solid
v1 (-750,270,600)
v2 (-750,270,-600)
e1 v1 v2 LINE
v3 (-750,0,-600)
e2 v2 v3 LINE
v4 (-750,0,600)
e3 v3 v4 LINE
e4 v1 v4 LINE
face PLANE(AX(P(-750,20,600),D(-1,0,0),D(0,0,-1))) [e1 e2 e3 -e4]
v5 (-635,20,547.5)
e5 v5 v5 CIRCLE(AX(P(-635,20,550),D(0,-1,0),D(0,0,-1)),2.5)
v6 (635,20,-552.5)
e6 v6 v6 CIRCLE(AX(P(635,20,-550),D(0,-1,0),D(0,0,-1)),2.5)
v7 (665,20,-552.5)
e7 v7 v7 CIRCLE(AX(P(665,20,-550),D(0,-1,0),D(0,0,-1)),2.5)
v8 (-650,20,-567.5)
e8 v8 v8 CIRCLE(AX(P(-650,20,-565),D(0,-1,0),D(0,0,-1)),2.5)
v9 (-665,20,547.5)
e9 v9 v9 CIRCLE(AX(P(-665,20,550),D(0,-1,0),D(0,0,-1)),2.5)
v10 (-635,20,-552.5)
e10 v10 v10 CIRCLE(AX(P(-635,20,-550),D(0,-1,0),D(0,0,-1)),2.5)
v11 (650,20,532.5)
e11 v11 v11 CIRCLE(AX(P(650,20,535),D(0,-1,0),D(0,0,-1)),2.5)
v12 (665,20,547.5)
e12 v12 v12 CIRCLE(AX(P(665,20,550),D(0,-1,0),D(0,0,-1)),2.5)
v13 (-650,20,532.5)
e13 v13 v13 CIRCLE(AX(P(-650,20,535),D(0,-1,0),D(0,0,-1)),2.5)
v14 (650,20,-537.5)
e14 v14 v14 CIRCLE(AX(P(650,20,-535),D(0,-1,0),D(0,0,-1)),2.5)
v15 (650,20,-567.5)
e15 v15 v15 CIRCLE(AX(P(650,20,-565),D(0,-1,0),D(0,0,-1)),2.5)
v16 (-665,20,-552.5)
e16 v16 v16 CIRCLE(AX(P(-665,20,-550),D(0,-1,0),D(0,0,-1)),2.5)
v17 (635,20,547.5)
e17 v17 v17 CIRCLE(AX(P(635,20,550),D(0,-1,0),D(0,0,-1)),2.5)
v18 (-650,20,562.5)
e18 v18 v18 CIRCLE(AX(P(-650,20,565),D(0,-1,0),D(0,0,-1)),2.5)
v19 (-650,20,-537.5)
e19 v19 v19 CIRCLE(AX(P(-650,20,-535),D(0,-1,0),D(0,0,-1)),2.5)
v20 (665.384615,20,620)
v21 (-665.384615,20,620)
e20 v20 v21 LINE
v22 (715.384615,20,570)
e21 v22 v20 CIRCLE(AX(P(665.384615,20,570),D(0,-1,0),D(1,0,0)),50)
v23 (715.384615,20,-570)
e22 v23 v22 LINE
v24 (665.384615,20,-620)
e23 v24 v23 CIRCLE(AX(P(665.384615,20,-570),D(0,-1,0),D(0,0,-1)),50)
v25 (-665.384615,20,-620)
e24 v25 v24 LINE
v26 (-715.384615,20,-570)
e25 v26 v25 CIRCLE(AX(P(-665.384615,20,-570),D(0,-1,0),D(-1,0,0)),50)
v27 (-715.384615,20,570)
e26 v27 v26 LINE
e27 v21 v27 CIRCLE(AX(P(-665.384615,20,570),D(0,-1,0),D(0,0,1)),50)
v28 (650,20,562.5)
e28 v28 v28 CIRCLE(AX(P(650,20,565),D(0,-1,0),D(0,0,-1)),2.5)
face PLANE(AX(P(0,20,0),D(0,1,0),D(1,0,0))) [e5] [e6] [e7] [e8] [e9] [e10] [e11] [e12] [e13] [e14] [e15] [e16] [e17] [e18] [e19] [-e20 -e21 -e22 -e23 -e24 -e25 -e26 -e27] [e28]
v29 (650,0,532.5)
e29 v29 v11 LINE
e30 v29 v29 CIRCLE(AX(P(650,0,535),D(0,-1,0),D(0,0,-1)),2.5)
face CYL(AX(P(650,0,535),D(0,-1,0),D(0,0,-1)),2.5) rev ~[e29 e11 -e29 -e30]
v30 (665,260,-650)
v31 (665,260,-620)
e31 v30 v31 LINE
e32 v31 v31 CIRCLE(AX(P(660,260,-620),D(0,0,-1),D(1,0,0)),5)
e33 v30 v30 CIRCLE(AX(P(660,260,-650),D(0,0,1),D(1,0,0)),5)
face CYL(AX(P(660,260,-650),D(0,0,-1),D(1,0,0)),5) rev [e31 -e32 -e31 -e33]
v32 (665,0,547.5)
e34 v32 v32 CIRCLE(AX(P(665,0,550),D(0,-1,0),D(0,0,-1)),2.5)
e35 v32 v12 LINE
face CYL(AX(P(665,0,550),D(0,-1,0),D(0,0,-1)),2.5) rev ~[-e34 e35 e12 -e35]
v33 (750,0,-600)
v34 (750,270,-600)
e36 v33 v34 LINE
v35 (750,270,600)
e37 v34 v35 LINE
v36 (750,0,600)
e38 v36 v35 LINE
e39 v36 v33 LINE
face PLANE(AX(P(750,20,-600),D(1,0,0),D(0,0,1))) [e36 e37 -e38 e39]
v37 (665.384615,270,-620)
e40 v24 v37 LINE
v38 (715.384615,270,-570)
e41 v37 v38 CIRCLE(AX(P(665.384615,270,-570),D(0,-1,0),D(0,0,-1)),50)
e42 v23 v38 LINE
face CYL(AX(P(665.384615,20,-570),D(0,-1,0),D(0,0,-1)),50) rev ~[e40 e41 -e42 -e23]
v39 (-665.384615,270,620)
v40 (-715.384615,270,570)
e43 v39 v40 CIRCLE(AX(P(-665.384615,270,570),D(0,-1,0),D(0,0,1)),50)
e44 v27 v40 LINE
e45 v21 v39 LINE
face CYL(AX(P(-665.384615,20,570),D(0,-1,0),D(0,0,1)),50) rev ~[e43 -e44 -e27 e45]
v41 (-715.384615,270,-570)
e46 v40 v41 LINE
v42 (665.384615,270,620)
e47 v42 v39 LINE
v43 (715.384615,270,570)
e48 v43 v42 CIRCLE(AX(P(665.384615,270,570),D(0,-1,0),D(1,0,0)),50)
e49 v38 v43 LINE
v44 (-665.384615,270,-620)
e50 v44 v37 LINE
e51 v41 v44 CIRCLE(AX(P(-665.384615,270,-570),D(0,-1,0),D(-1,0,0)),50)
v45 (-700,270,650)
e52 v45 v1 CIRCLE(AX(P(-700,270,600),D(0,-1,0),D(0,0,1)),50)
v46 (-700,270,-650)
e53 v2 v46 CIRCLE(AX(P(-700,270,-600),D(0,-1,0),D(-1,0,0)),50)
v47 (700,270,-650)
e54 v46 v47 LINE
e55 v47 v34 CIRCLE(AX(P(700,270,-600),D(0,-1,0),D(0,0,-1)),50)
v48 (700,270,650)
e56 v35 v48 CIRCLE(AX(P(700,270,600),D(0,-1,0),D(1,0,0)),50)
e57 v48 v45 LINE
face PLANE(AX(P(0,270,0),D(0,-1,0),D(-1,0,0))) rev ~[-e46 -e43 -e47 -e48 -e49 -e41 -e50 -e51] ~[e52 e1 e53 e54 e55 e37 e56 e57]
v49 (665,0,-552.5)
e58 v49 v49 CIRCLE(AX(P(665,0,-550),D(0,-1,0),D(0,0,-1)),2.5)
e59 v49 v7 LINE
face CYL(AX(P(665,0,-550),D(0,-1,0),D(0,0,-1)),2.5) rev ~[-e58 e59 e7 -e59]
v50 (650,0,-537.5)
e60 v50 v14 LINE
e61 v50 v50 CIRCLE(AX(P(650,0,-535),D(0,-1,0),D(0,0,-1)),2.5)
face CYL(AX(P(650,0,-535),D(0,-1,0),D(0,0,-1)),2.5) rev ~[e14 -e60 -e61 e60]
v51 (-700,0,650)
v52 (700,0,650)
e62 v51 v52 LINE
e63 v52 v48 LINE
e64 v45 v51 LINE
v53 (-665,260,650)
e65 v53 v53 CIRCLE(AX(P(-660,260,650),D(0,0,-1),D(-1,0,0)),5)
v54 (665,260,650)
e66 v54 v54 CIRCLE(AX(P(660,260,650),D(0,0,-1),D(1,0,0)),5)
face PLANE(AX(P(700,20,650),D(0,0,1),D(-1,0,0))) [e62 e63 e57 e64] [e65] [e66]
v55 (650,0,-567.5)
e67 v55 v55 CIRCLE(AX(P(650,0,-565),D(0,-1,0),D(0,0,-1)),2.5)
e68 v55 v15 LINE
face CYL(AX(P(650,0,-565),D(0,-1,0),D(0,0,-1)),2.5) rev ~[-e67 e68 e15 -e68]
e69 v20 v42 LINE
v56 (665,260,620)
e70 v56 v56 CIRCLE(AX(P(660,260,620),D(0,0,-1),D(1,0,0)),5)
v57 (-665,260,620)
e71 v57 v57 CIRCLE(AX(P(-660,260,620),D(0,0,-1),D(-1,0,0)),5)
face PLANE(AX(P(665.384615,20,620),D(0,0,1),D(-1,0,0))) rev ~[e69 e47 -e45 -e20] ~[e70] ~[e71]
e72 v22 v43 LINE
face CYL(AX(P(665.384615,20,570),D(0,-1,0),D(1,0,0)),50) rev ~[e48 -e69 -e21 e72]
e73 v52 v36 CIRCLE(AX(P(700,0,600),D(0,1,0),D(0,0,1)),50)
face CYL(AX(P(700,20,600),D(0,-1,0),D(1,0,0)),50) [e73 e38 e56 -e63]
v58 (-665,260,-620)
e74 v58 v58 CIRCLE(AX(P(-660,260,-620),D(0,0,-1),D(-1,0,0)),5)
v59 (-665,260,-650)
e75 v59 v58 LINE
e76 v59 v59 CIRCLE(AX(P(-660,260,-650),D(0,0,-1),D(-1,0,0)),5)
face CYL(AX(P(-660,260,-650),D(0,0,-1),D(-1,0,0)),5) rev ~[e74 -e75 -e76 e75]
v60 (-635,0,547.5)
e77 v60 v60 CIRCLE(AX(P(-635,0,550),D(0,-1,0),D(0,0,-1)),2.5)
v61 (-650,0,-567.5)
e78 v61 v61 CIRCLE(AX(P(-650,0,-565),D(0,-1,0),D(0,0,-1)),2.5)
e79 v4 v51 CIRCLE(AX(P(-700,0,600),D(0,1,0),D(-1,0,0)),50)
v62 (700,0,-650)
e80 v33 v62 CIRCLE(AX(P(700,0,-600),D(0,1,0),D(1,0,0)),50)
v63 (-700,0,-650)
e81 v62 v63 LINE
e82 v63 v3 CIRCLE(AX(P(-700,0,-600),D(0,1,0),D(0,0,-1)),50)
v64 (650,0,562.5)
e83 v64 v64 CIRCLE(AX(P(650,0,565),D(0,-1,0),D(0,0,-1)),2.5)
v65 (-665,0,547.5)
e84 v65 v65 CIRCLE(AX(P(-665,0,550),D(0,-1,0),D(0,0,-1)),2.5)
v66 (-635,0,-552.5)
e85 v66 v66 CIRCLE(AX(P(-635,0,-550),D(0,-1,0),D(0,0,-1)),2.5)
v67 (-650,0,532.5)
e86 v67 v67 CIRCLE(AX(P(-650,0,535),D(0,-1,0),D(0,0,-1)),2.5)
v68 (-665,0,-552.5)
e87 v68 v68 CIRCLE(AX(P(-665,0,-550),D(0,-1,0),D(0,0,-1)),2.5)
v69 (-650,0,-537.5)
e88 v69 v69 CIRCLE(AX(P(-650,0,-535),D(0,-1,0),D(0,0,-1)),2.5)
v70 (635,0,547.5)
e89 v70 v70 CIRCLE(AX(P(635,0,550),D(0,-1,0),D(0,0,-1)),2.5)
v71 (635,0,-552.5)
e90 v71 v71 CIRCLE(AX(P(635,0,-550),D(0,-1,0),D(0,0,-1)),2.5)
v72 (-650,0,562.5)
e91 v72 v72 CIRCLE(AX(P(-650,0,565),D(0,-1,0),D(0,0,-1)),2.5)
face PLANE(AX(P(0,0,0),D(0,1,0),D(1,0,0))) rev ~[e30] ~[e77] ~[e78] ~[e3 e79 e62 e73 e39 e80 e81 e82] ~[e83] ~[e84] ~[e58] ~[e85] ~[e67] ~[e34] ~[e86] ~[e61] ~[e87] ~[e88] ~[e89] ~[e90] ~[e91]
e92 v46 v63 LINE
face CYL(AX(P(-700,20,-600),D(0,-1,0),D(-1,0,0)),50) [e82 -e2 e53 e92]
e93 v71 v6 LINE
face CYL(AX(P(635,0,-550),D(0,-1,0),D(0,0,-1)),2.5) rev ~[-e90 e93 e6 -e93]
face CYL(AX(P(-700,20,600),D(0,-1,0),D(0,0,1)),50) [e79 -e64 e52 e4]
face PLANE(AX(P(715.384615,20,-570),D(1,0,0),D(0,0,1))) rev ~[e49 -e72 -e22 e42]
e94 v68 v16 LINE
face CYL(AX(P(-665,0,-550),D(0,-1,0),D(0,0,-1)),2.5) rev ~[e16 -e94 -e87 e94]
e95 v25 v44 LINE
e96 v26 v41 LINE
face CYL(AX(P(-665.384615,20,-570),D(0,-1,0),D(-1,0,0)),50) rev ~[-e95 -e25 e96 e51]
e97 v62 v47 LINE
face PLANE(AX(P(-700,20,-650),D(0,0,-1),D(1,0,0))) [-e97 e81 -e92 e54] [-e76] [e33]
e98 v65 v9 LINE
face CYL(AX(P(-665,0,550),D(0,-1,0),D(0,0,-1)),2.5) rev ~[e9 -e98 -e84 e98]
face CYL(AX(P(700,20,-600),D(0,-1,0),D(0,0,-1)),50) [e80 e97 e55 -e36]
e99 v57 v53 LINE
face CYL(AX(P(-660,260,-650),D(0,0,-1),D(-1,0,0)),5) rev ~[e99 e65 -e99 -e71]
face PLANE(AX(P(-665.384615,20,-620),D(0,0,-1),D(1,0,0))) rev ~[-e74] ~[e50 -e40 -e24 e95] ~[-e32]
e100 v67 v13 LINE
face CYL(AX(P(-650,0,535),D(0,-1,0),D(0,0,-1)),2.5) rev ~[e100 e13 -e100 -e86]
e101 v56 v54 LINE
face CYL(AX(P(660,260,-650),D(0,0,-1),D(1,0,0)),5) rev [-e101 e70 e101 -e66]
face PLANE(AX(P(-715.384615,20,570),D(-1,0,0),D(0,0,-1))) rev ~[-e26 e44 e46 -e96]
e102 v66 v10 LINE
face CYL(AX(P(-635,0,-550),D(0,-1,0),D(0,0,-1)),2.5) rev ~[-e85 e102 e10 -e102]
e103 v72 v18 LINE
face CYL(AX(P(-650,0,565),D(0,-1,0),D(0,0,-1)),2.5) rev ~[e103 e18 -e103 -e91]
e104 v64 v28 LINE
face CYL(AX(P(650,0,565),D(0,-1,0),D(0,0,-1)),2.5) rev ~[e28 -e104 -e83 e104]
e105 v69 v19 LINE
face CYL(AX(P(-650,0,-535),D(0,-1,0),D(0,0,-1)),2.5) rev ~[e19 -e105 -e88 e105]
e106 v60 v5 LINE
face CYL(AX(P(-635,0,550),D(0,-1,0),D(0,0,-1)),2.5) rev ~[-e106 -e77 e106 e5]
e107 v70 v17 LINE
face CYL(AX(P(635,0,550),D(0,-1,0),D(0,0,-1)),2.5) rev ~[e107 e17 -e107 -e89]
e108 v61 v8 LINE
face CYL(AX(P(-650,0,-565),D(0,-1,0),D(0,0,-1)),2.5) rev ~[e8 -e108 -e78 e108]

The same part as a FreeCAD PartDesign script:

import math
import FreeCAD as App
import Part
import Sketcher

V = App.Vector
Q = App.Units.Quantity

doc = App.newDocument("Part")
body = doc.addObject("PartDesign::Body", "Body")

sketch1 = body.newObject("Sketcher::SketchObject", "Sketch")
sketch1.AttachmentSupport = (doc.getObject("XZ_Plane"), [""])
sketch1.MapMode = "FlatFace"
sketch1.addGeometry(Part.LineSegment(V(-700, 650, 0), V(700, 650, 0)), False)
sketch1.addGeometry(Part.ArcOfCircle(Part.Circle(V(700, 600, 0), V(0, 0, 1), 50), math.radians(0), math.radians(90)), False)
sketch1.addGeometry(Part.LineSegment(V(750, 600, 0), V(750, -600, 0)), False)
sketch1.addGeometry(Part.ArcOfCircle(Part.Circle(V(700, -600, 0), V(0, 0, 1), 50), math.radians(-90), math.radians(0)), False)
sketch1.addGeometry(Part.LineSegment(V(700, -650, 0), V(-700, -650, 0)), False)
sketch1.addGeometry(Part.ArcOfCircle(Part.Circle(V(-700, -600, 0), V(0, 0, 1), 50), math.radians(-180), math.radians(-90)), False)
sketch1.addGeometry(Part.LineSegment(V(-750, -600, 0), V(-750, 600, 0)), False)
sketch1.addGeometry(Part.ArcOfCircle(Part.Circle(V(-700, 600, 0), V(0, 0, 1), 50), math.radians(90), math.radians(180)), False)
sketch1.addConstraint(Sketcher.Constraint("Tangent", 0, 2, 1, 2))
sketch1.addConstraint(Sketcher.Constraint("Tangent", 1, 1, 2, 1))
sketch1.addConstraint(Sketcher.Constraint("Tangent", 2, 2, 3, 2))
sketch1.addConstraint(Sketcher.Constraint("Tangent", 3, 1, 4, 1))
sketch1.addConstraint(Sketcher.Constraint("Tangent", 4, 2, 5, 2))
sketch1.addConstraint(Sketcher.Constraint("Tangent", 5, 1, 6, 1))
sketch1.addConstraint(Sketcher.Constraint("Tangent", 6, 2, 7, 2))
sketch1.addConstraint(Sketcher.Constraint("Tangent", 7, 1, 0, 1))
sketch1.addConstraint(Sketcher.Constraint("Horizontal", 0))
sketch1.addConstraint(Sketcher.Constraint("Vertical", 2))
sketch1.addConstraint(Sketcher.Constraint("Horizontal", 4))
sketch1.addConstraint(Sketcher.Constraint("Vertical", 6))
sketch1.addConstraint(Sketcher.Constraint("Equal", 1, 3))
sketch1.addConstraint(Sketcher.Constraint("Equal", 3, 5))
sketch1.addConstraint(Sketcher.Constraint("Equal", 5, 7))
sketch1.addConstraint(Sketcher.Constraint("Symmetric", 1, 3, 5, 3, -1, 1))
sketch1.addConstraint(Sketcher.Constraint("Radius", 1, Q("50 mm")))
sketch1.addConstraint(Sketcher.Constraint("DistanceX", 0, 1, 0, 2, Q("1400 mm")))
sketch1.addConstraint(Sketcher.Constraint("DistanceY", 2, 2, 2, 1, Q("1200 mm")))
pad1 = body.newObject("PartDesign::Pad", "Pad")
pad1.Profile = sketch1
pad1.Length = 20
pad1.Reversed = True

sketch2 = body.newObject("Sketcher::SketchObject", "Sketch001")
sketch2.AttachmentSupport = (doc.getObject("XZ_Plane"), [""])
sketch2.MapMode = "FlatFace"
sketch2.AttachmentOffset = App.Placement(V(0, 0, -20), App.Rotation())
sketch2.addGeometry(Part.LineSegment(V(-700, 650, 0), V(700, 650, 0)), False)
sketch2.addGeometry(Part.ArcOfCircle(Part.Circle(V(700, 600, 0), V(0, 0, 1), 50), math.radians(0), math.radians(90)), False)
sketch2.addGeometry(Part.LineSegment(V(750, 600, 0), V(750, -600, 0)), False)
sketch2.addGeometry(Part.ArcOfCircle(Part.Circle(V(700, -600, 0), V(0, 0, 1), 50), math.radians(-90), math.radians(0)), False)
sketch2.addGeometry(Part.LineSegment(V(700, -650, 0), V(-700, -650, 0)), False)
sketch2.addGeometry(Part.ArcOfCircle(Part.Circle(V(-700, -600, 0), V(0, 0, 1), 50), math.radians(-180), math.radians(-90)), False)
sketch2.addGeometry(Part.LineSegment(V(-750, -600, 0), V(-750, 600, 0)), False)
sketch2.addGeometry(Part.ArcOfCircle(Part.Circle(V(-700, 600, 0), V(0, 0, 1), 50), math.radians(90), math.radians(180)), False)
sketch2.addGeometry(Part.LineSegment(V(665, 620, 0), V(-665, 620, 0)), False)
sketch2.addGeometry(Part.ArcOfCircle(Part.Circle(V(-665, 570, 0), V(0, 0, 1), 50), math.radians(90), math.radians(180)), False)
sketch2.addGeometry(Part.LineSegment(V(-715, 570, 0), V(-715, -570, 0)), False)
sketch2.addGeometry(Part.ArcOfCircle(Part.Circle(V(-665, -570, 0), V(0, 0, 1), 50), math.radians(-180), math.radians(-90)), False)
sketch2.addGeometry(Part.LineSegment(V(-665, -620, 0), V(665, -620, 0)), False)
sketch2.addGeometry(Part.ArcOfCircle(Part.Circle(V(665, -570, 0), V(0, 0, 1), 50), math.radians(-90), math.radians(0)), False)
sketch2.addGeometry(Part.LineSegment(V(715, -570, 0), V(715, 570, 0)), False)
sketch2.addGeometry(Part.ArcOfCircle(Part.Circle(V(665, 570, 0), V(0, 0, 1), 50), math.radians(0), math.radians(90)), False)
sketch2.addConstraint(Sketcher.Constraint("Tangent", 0, 2, 1, 2))
sketch2.addConstraint(Sketcher.Constraint("Tangent", 1, 1, 2, 1))
sketch2.addConstraint(Sketcher.Constraint("Tangent", 2, 2, 3, 2))
sketch2.addConstraint(Sketcher.Constraint("Tangent", 3, 1, 4, 1))
sketch2.addConstraint(Sketcher.Constraint("Tangent", 4, 2, 5, 2))
sketch2.addConstraint(Sketcher.Constraint("Tangent", 5, 1, 6, 1))
sketch2.addConstraint(Sketcher.Constraint("Tangent", 6, 2, 7, 2))
sketch2.addConstraint(Sketcher.Constraint("Tangent", 7, 1, 0, 1))
sketch2.addConstraint(Sketcher.Constraint("Tangent", 8, 2, 9, 1))
sketch2.addConstraint(Sketcher.Constraint("Tangent", 9, 2, 10, 1))
sketch2.addConstraint(Sketcher.Constraint("Tangent", 10, 2, 11, 1))
sketch2.addConstraint(Sketcher.Constraint("Tangent", 11, 2, 12, 1))
sketch2.addConstraint(Sketcher.Constraint("Tangent", 12, 2, 13, 1))
sketch2.addConstraint(Sketcher.Constraint("Tangent", 13, 2, 14, 1))
sketch2.addConstraint(Sketcher.Constraint("Tangent", 14, 2, 15, 1))
sketch2.addConstraint(Sketcher.Constraint("Tangent", 15, 2, 8, 1))
sketch2.addConstraint(Sketcher.Constraint("Horizontal", 0))
sketch2.addConstraint(Sketcher.Constraint("Vertical", 2))
sketch2.addConstraint(Sketcher.Constraint("Horizontal", 4))
sketch2.addConstraint(Sketcher.Constraint("Vertical", 6))
sketch2.addConstraint(Sketcher.Constraint("Horizontal", 8))
sketch2.addConstraint(Sketcher.Constraint("Vertical", 10))
sketch2.addConstraint(Sketcher.Constraint("Horizontal", 12))
sketch2.addConstraint(Sketcher.Constraint("Vertical", 14))
sketch2.addConstraint(Sketcher.Constraint("Equal", 1, 3))
sketch2.addConstraint(Sketcher.Constraint("Equal", 3, 5))
sketch2.addConstraint(Sketcher.Constraint("Equal", 5, 7))
sketch2.addConstraint(Sketcher.Constraint("Equal", 7, 9))
sketch2.addConstraint(Sketcher.Constraint("Equal", 9, 11))
sketch2.addConstraint(Sketcher.Constraint("Equal", 11, 13))
sketch2.addConstraint(Sketcher.Constraint("Equal", 13, 15))
sketch2.addConstraint(Sketcher.Constraint("Symmetric", 1, 3, 5, 3, -1, 1))
sketch2.addConstraint(Sketcher.Constraint("Symmetric", 9, 3, 13, 3, -1, 1))
sketch2.addConstraint(Sketcher.Constraint("Radius", 1, Q("50 mm")))
sketch2.addConstraint(Sketcher.Constraint("DistanceX", 0, 1, 0, 2, Q("1400 mm")))
sketch2.addConstraint(Sketcher.Constraint("DistanceY", 2, 2, 2, 1, Q("1200 mm")))
sketch2.addConstraint(Sketcher.Constraint("DistanceY", 10, 2, 10, 1, Q("1140 mm")))
sketch2.addConstraint(Sketcher.Constraint("DistanceX", 8, 2, 8, 1, Q("1330.769231 mm")))
pad2 = body.newObject("PartDesign::Pad", "Pad001")
pad2.Profile = sketch2
pad2.Length = 250
pad2.Reversed = True

sketch3 = body.newObject("Sketcher::SketchObject", "Sketch002")
sketch3.AttachmentSupport = (doc.getObject("XZ_Plane"), [""])
sketch3.MapMode = "FlatFace"
sketch3.addGeometry(Part.Circle(V(-650, -565, 0), V(0, 0, 1), 2.5), False)
sketch3.addGeometry(Part.Circle(V(-650, 565, 0), V(0, 0, 1), 2.5), False)
sketch3.addGeometry(Part.Circle(V(-665, 550, 0), V(0, 0, 1), 2.5), False)
sketch3.addGeometry(Part.Circle(V(-635, 550, 0), V(0, 0, 1), 2.5), False)
sketch3.addGeometry(Part.Circle(V(-650, 535, 0), V(0, 0, 1), 2.5), False)
sketch3.addGeometry(Part.Circle(V(665, 550, 0), V(0, 0, 1), 2.5), False)
sketch3.addGeometry(Part.Circle(V(650, 565, 0), V(0, 0, 1), 2.5), False)
sketch3.addGeometry(Part.Circle(V(635, 550, 0), V(0, 0, 1), 2.5), False)
sketch3.addGeometry(Part.Circle(V(650, 535, 0), V(0, 0, 1), 2.5), False)
sketch3.addGeometry(Part.Circle(V(650, -535, 0), V(0, 0, 1), 2.5), False)
sketch3.addGeometry(Part.Circle(V(635, -550, 0), V(0, 0, 1), 2.5), False)
sketch3.addGeometry(Part.Circle(V(665, -550, 0), V(0, 0, 1), 2.5), False)
sketch3.addGeometry(Part.Circle(V(650, -565, 0), V(0, 0, 1), 2.5), False)
sketch3.addGeometry(Part.Circle(V(-650, -535, 0), V(0, 0, 1), 2.5), False)
sketch3.addGeometry(Part.Circle(V(-665, -550, 0), V(0, 0, 1), 2.5), False)
sketch3.addGeometry(Part.Circle(V(-635, -550, 0), V(0, 0, 1), 2.5), False)
sketch3.addConstraint(Sketcher.Constraint("Equal", 0, 1))
sketch3.addConstraint(Sketcher.Constraint("Equal", 1, 2))
sketch3.addConstraint(Sketcher.Constraint("Equal", 2, 3))
sketch3.addConstraint(Sketcher.Constraint("Equal", 3, 4))
sketch3.addConstraint(Sketcher.Constraint("Equal", 4, 5))
sketch3.addConstraint(Sketcher.Constraint("Equal", 5, 6))
sketch3.addConstraint(Sketcher.Constraint("Equal", 6, 7))
sketch3.addConstraint(Sketcher.Constraint("Equal", 7, 8))
sketch3.addConstraint(Sketcher.Constraint("Equal", 8, 9))
sketch3.addConstraint(Sketcher.Constraint("Equal", 9, 10))
sketch3.addConstraint(Sketcher.Constraint("Equal", 10, 11))
sketch3.addConstraint(Sketcher.Constraint("Equal", 11, 12))
sketch3.addConstraint(Sketcher.Constraint("Equal", 12, 13))
sketch3.addConstraint(Sketcher.Constraint("Equal", 13, 14))
sketch3.addConstraint(Sketcher.Constraint("Equal", 14, 15))
sketch3.addConstraint(Sketcher.Constraint("Symmetric", 0, 3, 6, 3, -1, 1))
sketch3.addConstraint(Sketcher.Constraint("Symmetric", 4, 3, 9, 3, -1, 1))
sketch3.addConstraint(Sketcher.Constraint("Symmetric", 3, 3, 10, 3, -1, 1))
sketch3.addConstraint(Sketcher.Constraint("Symmetric", 2, 3, 11, 3, -1, 1))
sketch3.addConstraint(Sketcher.Constraint("Symmetric", 1, 3, 12, 3, -1, 1))
sketch3.addConstraint(Sketcher.Constraint("Symmetric", 8, 3, 13, 3, -1, 1))
sketch3.addConstraint(Sketcher.Constraint("Symmetric", 5, 3, 14, 3, -1, 1))
sketch3.addConstraint(Sketcher.Constraint("Symmetric", 7, 3, 15, 3, -1, 1))
sketch3.addConstraint(Sketcher.Constraint("Symmetric", 2, 3, 5, 3, -2))
sketch3.addConstraint(Sketcher.Constraint("Symmetric", 1, 3, 6, 3, -2))
sketch3.addConstraint(Sketcher.Constraint("Symmetric", 3, 3, 7, 3, -2))
sketch3.addConstraint(Sketcher.Constraint("Symmetric", 4, 3, 8, 3, -2))
sketch3.addConstraint(Sketcher.Constraint("Horizontal", 2, 3, 3, 3))
sketch3.addConstraint(Sketcher.Constraint("Vertical", 1, 3, 4, 3))
sketch3.addConstraint(Sketcher.Constraint("Diameter", 0, Q("5 mm")))
sketch3.addConstraint(Sketcher.Constraint("DistanceX", 0, 3, -1, 1, Q("650 mm")))
sketch3.addConstraint(Sketcher.Constraint("DistanceY", 0, 3, -1, 1, Q("565 mm")))
sketch3.addConstraint(Sketcher.Constraint("DistanceX", 2, 3, -1, 1, Q("665 mm")))
sketch3.addConstraint(Sketcher.Constraint("DistanceY", -1, 1, 2, 3, Q("550 mm")))
sketch3.addConstraint(Sketcher.Constraint("DistanceX", 3, 3, -1, 1, Q("635 mm")))
sketch3.addConstraint(Sketcher.Constraint("DistanceY", -1, 1, 4, 3, Q("535 mm")))
pocket1 = body.newObject("PartDesign::Pocket", "Pocket")
pocket1.Profile = sketch3
pocket1.Length = 250

sketch4 = body.newObject("Sketcher::SketchObject", "Sketch003")
sketch4.AttachmentSupport = (doc.getObject("XY_Plane"), [""])
sketch4.MapMode = "FlatFace"
sketch4.AttachmentOffset = App.Placement(V(0, 0, -650), App.Rotation())
sketch4.addGeometry(Part.Circle(V(-660, 260, 0), V(0, 0, 1), 5), False)
sketch4.addConstraint(Sketcher.Constraint("Diameter", 0, Q("10 mm")))
sketch4.addConstraint(Sketcher.Constraint("DistanceX", 0, 3, -1, 1, Q("660 mm")))
sketch4.addConstraint(Sketcher.Constraint("DistanceY", -1, 1, 0, 3, Q("260 mm")))
pocket2 = body.newObject("PartDesign::Pocket", "Pocket001")
pocket2.Profile = sketch4
pocket2.Length = 1500
pocket2.Reversed = True
doc.recompute()

mirrored = body.newObject("PartDesign::Mirrored", "Mirrored")
mirrored.Originals = [pocket2]
mirrored.MirrorPlane = (doc.getObject("YZ_Plane"), [""])
body.Tip = mirrored

doc.recompute()
